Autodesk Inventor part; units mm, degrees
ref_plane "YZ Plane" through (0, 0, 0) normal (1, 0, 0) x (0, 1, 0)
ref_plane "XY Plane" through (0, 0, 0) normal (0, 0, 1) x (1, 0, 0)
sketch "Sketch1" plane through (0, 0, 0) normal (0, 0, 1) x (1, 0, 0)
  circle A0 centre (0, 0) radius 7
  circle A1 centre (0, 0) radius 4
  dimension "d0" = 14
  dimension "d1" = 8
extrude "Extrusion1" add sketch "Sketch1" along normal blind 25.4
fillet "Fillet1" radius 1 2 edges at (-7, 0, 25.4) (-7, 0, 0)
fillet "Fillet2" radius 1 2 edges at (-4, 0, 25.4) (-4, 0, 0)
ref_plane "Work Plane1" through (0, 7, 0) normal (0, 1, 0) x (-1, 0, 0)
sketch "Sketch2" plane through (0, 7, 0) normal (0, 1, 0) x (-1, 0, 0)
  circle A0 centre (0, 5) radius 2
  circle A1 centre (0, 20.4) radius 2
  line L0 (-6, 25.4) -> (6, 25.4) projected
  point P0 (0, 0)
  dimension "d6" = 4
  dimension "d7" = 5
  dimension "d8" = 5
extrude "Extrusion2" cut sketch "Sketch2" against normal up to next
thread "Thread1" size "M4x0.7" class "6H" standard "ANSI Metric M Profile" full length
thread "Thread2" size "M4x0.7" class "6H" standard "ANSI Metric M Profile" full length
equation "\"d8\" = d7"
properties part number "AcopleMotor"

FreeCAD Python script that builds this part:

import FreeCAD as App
import Part
import Sketcher
Q = App.Units.Quantity


def edges_at(feature, points):
    """Names of the edges that pass closest to the given points."""
    edges = feature.Shape.Edges
    near = lambda p: min(range(len(edges)), key=lambda i: edges[i].distToShape(Part.Vertex(*p))[0])
    return sorted({f"Edge{near(p) + 1}" for p in points})

doc = App.newDocument("Part")
body = doc.addObject("PartDesign::Body", "Body")

# Sketch on XY plane
sketch1 = doc.addObject("Sketcher::SketchObject", "Sketch")
body.addObject(sketch1)
sketch1.AttachmentSupport = (doc.XY_Plane, [""])
sketch1.MapMode = "FlatFace"
sketch1.addGeometry([
    Part.Circle(App.Vector(0, 0, 0), App.Vector(0, 0, 1), 7),
    Part.Circle(App.Vector(0, 0, 0), App.Vector(0, 0, 1), 4),
], False)
sketch1.addConstraint([
    Sketcher.Constraint("Coincident", 0, 3, -1, 1),
    Sketcher.Constraint("Coincident", 1, 3, -1, 1),
    Sketcher.Constraint("Diameter", 0, Q("14 mm")),
    Sketcher.Constraint("Diameter", 1, Q("8 mm")),
])
pad1 = doc.addObject("PartDesign::Pad", "Pad")
body.addObject(pad1)
pad1.Profile = sketch1
pad1.Length = 25.4
doc.recompute()

fillet = doc.addObject("PartDesign::Fillet", "Fillet")
body.addObject(fillet)
fillet.Base = (pad1, edges_at(pad1, [(-7, 0, 25.4), (-7, 0, 0)]))
fillet.Radius = 1
doc.recompute()

fillet2 = doc.addObject("PartDesign::Fillet", "Fillet001")
body.addObject(fillet2)
fillet2.Base = (fillet, edges_at(fillet, [(-4, 0, 25.4), (-4, 0, 0)]))
fillet2.Radius = 1

# Sketch on XZ plane
sketch2 = doc.addObject("Sketcher::SketchObject", "Sketch001")
body.addObject(sketch2)
sketch2.AttachmentSupport = (doc.XZ_Plane, [""])
sketch2.MapMode = "FlatFace"
sketch2.AttachmentOffset = App.Placement(App.Vector(0, 0, -7), App.Rotation())
sketch2.addGeometry([
    Part.Circle(App.Vector(0, 5, 0), App.Vector(0, 0, 1), 2),
    Part.Circle(App.Vector(0, 20.4, 0), App.Vector(0, 0, 1), 2),
], False)
sketch2.addConstraint([
    Sketcher.Constraint("Equal", 0, 1),
    Sketcher.Constraint("PointOnObject", 0, 3, -2),
    Sketcher.Constraint("PointOnObject", 1, 3, -2),
    Sketcher.Constraint("Diameter", 0, Q("4 mm")),
    Sketcher.Constraint("DistanceY", -1, 1, 0, 3, Q("5 mm")),
    Sketcher.Constraint("DistanceY", -1, 1, 1, 3, Q("20.4 mm")),
])
pocket1 = doc.addObject("PartDesign::Pocket", "Pocket")
body.addObject(pocket1)
pocket1.Profile = sketch2
pocket1.Length = 3.5359
pocket1.Reversed = True

doc.recompute()
